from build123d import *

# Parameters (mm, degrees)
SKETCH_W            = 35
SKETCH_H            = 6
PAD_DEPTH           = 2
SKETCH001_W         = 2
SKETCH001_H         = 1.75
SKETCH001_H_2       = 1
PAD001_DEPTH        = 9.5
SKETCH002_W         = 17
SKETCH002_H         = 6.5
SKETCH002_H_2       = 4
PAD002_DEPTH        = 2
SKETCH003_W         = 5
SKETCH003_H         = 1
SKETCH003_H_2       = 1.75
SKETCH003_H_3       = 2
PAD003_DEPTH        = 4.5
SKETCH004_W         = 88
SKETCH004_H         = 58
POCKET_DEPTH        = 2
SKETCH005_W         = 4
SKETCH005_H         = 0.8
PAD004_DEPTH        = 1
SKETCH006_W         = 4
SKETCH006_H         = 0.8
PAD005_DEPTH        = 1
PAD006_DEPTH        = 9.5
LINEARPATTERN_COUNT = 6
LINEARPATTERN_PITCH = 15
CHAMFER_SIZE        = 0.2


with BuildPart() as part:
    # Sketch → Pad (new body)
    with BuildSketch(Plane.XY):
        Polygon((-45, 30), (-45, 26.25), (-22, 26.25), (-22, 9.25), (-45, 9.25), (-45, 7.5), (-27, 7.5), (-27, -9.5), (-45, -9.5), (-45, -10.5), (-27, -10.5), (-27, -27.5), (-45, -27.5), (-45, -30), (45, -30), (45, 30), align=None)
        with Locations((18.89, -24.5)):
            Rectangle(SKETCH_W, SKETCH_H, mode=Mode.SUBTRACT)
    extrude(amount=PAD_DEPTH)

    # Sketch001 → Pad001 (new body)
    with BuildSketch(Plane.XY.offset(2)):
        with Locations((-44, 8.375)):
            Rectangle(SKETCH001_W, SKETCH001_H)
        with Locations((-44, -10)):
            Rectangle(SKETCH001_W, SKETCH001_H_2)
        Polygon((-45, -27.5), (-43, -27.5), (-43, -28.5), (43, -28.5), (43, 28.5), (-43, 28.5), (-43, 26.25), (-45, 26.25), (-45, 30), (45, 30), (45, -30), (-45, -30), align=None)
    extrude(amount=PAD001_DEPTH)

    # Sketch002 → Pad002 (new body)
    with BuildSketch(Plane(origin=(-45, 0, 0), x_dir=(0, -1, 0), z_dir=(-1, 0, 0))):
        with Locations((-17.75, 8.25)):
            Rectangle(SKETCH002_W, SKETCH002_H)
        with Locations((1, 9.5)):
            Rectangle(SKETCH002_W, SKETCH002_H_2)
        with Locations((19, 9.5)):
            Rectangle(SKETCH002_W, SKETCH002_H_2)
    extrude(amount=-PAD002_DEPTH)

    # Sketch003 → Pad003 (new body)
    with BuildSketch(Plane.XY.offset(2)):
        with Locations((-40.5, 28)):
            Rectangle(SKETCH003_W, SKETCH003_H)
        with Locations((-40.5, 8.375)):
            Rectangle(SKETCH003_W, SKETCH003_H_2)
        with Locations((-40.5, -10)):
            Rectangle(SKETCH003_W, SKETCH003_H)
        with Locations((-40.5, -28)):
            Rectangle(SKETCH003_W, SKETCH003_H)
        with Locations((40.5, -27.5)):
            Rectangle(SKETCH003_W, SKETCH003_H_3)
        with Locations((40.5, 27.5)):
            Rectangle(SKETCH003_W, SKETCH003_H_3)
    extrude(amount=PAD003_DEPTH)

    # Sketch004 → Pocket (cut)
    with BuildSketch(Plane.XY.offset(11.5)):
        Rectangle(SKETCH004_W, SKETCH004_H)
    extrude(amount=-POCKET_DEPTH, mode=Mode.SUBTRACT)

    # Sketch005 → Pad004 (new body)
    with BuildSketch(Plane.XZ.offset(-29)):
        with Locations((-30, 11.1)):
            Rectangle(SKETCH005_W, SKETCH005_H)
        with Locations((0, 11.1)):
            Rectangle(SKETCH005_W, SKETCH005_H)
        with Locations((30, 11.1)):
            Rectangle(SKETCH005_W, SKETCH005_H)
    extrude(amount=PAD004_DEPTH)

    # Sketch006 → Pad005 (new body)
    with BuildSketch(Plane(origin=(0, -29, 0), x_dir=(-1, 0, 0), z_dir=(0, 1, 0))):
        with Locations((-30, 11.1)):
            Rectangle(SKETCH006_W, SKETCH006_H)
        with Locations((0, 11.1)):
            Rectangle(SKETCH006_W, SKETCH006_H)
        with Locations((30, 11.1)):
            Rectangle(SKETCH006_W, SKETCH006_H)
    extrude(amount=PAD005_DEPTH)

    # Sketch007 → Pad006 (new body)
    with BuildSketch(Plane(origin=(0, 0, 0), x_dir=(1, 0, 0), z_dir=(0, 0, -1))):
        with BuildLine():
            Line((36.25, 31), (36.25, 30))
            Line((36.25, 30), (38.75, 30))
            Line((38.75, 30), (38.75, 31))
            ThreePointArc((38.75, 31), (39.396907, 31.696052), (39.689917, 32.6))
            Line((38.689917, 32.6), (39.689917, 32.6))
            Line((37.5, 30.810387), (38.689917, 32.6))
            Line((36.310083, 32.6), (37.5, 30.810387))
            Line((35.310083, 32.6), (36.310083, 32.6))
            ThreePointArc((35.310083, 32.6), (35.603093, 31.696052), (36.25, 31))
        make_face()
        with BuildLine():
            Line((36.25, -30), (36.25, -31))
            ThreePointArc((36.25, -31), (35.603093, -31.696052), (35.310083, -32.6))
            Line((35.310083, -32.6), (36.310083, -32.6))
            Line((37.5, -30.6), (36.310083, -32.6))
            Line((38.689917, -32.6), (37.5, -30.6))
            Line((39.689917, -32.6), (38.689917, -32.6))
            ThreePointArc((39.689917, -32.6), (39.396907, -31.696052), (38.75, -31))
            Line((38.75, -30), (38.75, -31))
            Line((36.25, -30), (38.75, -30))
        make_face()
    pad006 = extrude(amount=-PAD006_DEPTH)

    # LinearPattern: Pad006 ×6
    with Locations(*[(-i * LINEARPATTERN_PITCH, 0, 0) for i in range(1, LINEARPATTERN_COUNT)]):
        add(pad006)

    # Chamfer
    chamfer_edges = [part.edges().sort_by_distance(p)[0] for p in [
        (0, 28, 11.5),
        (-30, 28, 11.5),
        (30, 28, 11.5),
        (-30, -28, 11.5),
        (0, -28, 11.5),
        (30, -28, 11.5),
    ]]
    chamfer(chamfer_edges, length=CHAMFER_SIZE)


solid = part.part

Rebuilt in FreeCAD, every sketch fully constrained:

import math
import FreeCAD as App
import Part
import Sketcher

V = App.Vector
Q = App.Units.Quantity


def edges_at(feature, points):
    """Names of the edges that pass closest to the given points."""
    edges = feature.Shape.Edges
    near = lambda p: min(range(len(edges)), key=lambda i: edges[i].distToShape(Part.Vertex(*p))[0])
    return sorted({f"Edge{near(p) + 1}" for p in points})

doc = App.newDocument("Part")
body = doc.addObject("PartDesign::Body", "Body")

# Sketch on XY plane
sketch1 = body.newObject("Sketcher::SketchObject", "Sketch")
sketch1.AttachmentSupport = (doc.getObject("XY_Plane"), [""])
sketch1.MapMode = "FlatFace"
sketch1.addGeometry([
    Part.LineSegment(V(-45, 30, 0), V(-45, 26.2, 0)),  # 0
    Part.LineSegment(V(-45, 26.2, 0), V(-22, 26.2, 0)),  # 1
    Part.LineSegment(V(-22, 26.2, 0), V(-22, 9.2, 0)),  # 2
    Part.LineSegment(V(-22, 9.2, 0), V(-45, 9.2, 0)),  # 3
    Part.LineSegment(V(-45, 9.2, 0), V(-45, 7.5, 0)),  # 4
    Part.LineSegment(V(-45, 7.5, 0), V(-27, 7.5, 0)),  # 5
    Part.LineSegment(V(-27, 7.5, 0), V(-27, -9.5, 0)),  # 6
    Part.LineSegment(V(-27, -9.5, 0), V(-45, -9.5, 0)),  # 7
    Part.LineSegment(V(-45, -9.5, 0), V(-45, -10.5, 0)),  # 8
    Part.LineSegment(V(-45, -10.5, 0), V(-27, -10.5, 0)),  # 9
    Part.LineSegment(V(-27, -10.5, 0), V(-27, -27.5, 0)),  # 10
    Part.LineSegment(V(-27, -27.5, 0), V(-45, -27.5, 0)),  # 11
    Part.LineSegment(V(-45, -27.5, 0), V(-45, -30, 0)),  # 12
    Part.LineSegment(V(-45, -30, 0), V(45, -30, 0)),  # 13
    Part.LineSegment(V(45, -30, 0), V(45, 30, 0)),  # 14
    Part.LineSegment(V(45, 30, 0), V(-45, 30, 0)),  # 15
    Part.LineSegment(V(36.4, -27.5, 0), V(1.4, -27.5, 0)),  # 16
    Part.LineSegment(V(1.4, -27.5, 0), V(1.4, -21.5, 0)),  # 17
    Part.LineSegment(V(1.4, -21.5, 0), V(36.4, -21.5, 0)),  # 18
    Part.LineSegment(V(36.4, -21.5, 0), V(36.4, -27.5, 0)),  # 19
], False)
sketch1.addConstraint([
    Sketcher.Constraint("Coincident", 0, 2, 1, 1),
    Sketcher.Constraint("Coincident", 1, 2, 2, 1),
    Sketcher.Constraint("Coincident", 2, 2, 3, 1),
    Sketcher.Constraint("Coincident", 3, 2, 4, 1),
    Sketcher.Constraint("Coincident", 4, 2, 5, 1),
    Sketcher.Constraint("Coincident", 5, 2, 6, 1),
    Sketcher.Constraint("Coincident", 6, 2, 7, 1),
    Sketcher.Constraint("Coincident", 7, 2, 8, 1),
    Sketcher.Constraint("Coincident", 8, 2, 9, 1),
    Sketcher.Constraint("Coincident", 9, 2, 10, 1),
    Sketcher.Constraint("Coincident", 10, 2, 11, 1),
    Sketcher.Constraint("Coincident", 11, 2, 12, 1),
    Sketcher.Constraint("Coincident", 12, 2, 13, 1),
    Sketcher.Constraint("Coincident", 13, 2, 14, 1),
    Sketcher.Constraint("Coincident", 14, 2, 15, 1),
    Sketcher.Constraint("Coincident", 15, 2, 0, 1),
    Sketcher.Constraint("Coincident", 16, 2, 17, 1),
    Sketcher.Constraint("Coincident", 17, 2, 18, 1),
    Sketcher.Constraint("Coincident", 18, 2, 19, 1),
    Sketcher.Constraint("Coincident", 19, 2, 16, 1),
    Sketcher.Constraint("Vertical", 0),
    Sketcher.Constraint("Horizontal", 1),
    Sketcher.Constraint("Vertical", 2),
    Sketcher.Constraint("Horizontal", 3),
    Sketcher.Constraint("Vertical", 4),
    Sketcher.Constraint("Horizontal", 5),
    Sketcher.Constraint("Vertical", 6),
    Sketcher.Constraint("Horizontal", 7),
    Sketcher.Constraint("Vertical", 8),
    Sketcher.Constraint("Horizontal", 9),
    Sketcher.Constraint("Vertical", 10),
    Sketcher.Constraint("Horizontal", 11),
    Sketcher.Constraint("Vertical", 12),
    Sketcher.Constraint("Horizontal", 13),
    Sketcher.Constraint("Vertical", 14),
    Sketcher.Constraint("Horizontal", 15),
    Sketcher.Constraint("Horizontal", 16),
    Sketcher.Constraint("Vertical", 17),
    Sketcher.Constraint("Horizontal", 18),
    Sketcher.Constraint("Vertical", 19),
    Sketcher.Constraint("Symmetric", 12, 2, 14, 2, -1, 1),
    Sketcher.Constraint("Horizontal", 11, 2, 16, 2),
    Sketcher.Constraint("Vertical", 0, 2, 3, 2),
    Sketcher.Constraint("Vertical", 4, 2, 7, 2),
    Sketcher.Constraint("Vertical", 6, 2, 9, 2),
    Sketcher.Constraint("Vertical", 8, 2, 11, 2),
    Sketcher.Constraint("Equal", 2, 6),
    Sketcher.Constraint("Equal", 6, 10),
    Sketcher.Constraint("DistanceX", 1, 1, 1, 2, 23.0),
    Sketcher.Constraint("DistanceX", 5, 1, 5, 2, 18.0),
    Sketcher.Constraint("DistanceX", 13, 1, 13, 2, 90.0),
    Sketcher.Constraint("DistanceX", 16, 2, 16, 1, 35.0),
    Sketcher.Constraint("DistanceY", 2, 2, 2, 1, 17.0),
    Sketcher.Constraint("DistanceY", 8, 2, 8, 1, 1.0),
    Sketcher.Constraint("DistanceY", 14, 1, 14, 2, 60.0),
    Sketcher.Constraint("DistanceY", 17, 1, 17, 2, 6.0),
    Sketcher.Constraint("DistanceY", 12, 2, 12, 1, 2.5),
    Sketcher.Constraint("DistanceY", 0, 2, 0, 1, 3.75),
    Sketcher.Constraint("DistanceX", -1, 1, 16, 2, 1.39),
])
pad1 = body.newObject("PartDesign::Pad", "Pad")
pad1.Profile = sketch1
pad1.Length = 2

# Sketch on XY plane
sketch2 = body.newObject("Sketcher::SketchObject", "Sketch001")
sketch2.AttachmentSupport = (doc.getObject("XY_Plane"), [""])
sketch2.MapMode = "FlatFace"
sketch2.AttachmentOffset = App.Placement(V(0, 0, 2), App.Rotation())
sketch2.addGeometry([
    Part.LineSegment(V(-45, 9.2, 0), V(-45, 7.5, 0)),  # 0
    Part.LineSegment(V(-45, 7.5, 0), V(-43, 7.5, 0)),  # 1
    Part.LineSegment(V(-43, 7.5, 0), V(-43, 9.2, 0)),  # 2
    Part.LineSegment(V(-43, 9.2, 0), V(-45, 9.2, 0)),  # 3
    Part.LineSegment(V(-45, -9.5, 0), V(-45, -10.5, 0)),  # 4
    Part.LineSegment(V(-45, -10.5, 0), V(-43, -10.5, 0)),  # 5
    Part.LineSegment(V(-43, -10.5, 0), V(-43, -9.5, 0)),  # 6
    Part.LineSegment(V(-43, -9.5, 0), V(-45, -9.5, 0)),  # 7
    Part.LineSegment(V(-43, -27.5, 0), V(-45, -27.5, 0)),  # 8
    Part.LineSegment(V(-45, -27.5, 0), V(-45, -30, 0)),  # 9
    Part.LineSegment(V(-45, -30, 0), V(45, -30, 0)),  # 10
    Part.LineSegment(V(45, -30, 0), V(45, 30, 0)),  # 11
    Part.LineSegment(V(45, 30, 0), V(-45, 30, 0)),  # 12
    Part.LineSegment(V(-45, 30, 0), V(-45, 26.2, 0)),  # 13
    Part.LineSegment(V(-45, 26.2, 0), V(-43, 26.2, 0)),  # 14
    Part.LineSegment(V(-43, 26.2, 0), V(-43, 28.5, 0)),  # 15
    Part.LineSegment(V(-43, 28.5, 0), V(43, 28.5, 0)),  # 16
    Part.LineSegment(V(43, 28.5, 0), V(43, -28.5, 0)),  # 17
    Part.LineSegment(V(43, -28.5, 0), V(-43, -28.5, 0)),  # 18
    Part.LineSegment(V(-43, -28.5, 0), V(-43, -27.5, 0)),  # 19
], False)
sketch2.addConstraint([
    Sketcher.Constraint("Coincident", 0, 2, 1, 1),
    Sketcher.Constraint("Coincident", 1, 2, 2, 1),
    Sketcher.Constraint("Coincident", 2, 2, 3, 1),
    Sketcher.Constraint("Coincident", 3, 2, 0, 1),
    Sketcher.Constraint("Coincident", 4, 2, 5, 1),
    Sketcher.Constraint("Coincident", 5, 2, 6, 1),
    Sketcher.Constraint("Coincident", 6, 2, 7, 1),
    Sketcher.Constraint("Coincident", 7, 2, 4, 1),
    Sketcher.Constraint("Coincident", 8, 2, 9, 1),
    Sketcher.Constraint("Coincident", 9, 2, 10, 1),
    Sketcher.Constraint("Coincident", 10, 2, 11, 1),
    Sketcher.Constraint("Coincident", 11, 2, 12, 1),
    Sketcher.Constraint("Coincident", 12, 2, 13, 1),
    Sketcher.Constraint("Coincident", 13, 2, 14, 1),
    Sketcher.Constraint("Coincident", 14, 2, 15, 1),
    Sketcher.Constraint("Coincident", 15, 2, 16, 1),
    Sketcher.Constraint("Coincident", 16, 2, 17, 1),
    Sketcher.Constraint("Coincident", 17, 2, 18, 1),
    Sketcher.Constraint("Coincident", 18, 2, 19, 1),
    Sketcher.Constraint("Coincident", 19, 2, 8, 1),
    Sketcher.Constraint("Vertical", 0),
    Sketcher.Constraint("Horizontal", 1),
    Sketcher.Constraint("Vertical", 2),
    Sketcher.Constraint("Horizontal", 3),
    Sketcher.Constraint("Vertical", 4),
    Sketcher.Constraint("Horizontal", 5),
    Sketcher.Constraint("Vertical", 6),
    Sketcher.Constraint("Horizontal", 7),
    Sketcher.Constraint("Horizontal", 8),
    Sketcher.Constraint("Vertical", 9),
    Sketcher.Constraint("Horizontal", 10),
    Sketcher.Constraint("Vertical", 11),
    Sketcher.Constraint("Horizontal", 12),
    Sketcher.Constraint("Vertical", 13),
    Sketcher.Constraint("Horizontal", 14),
    Sketcher.Constraint("Vertical", 15),
    Sketcher.Constraint("Horizontal", 16),
    Sketcher.Constraint("Vertical", 17),
    Sketcher.Constraint("Horizontal", 18),
    Sketcher.Constraint("Vertical", 19),
    Sketcher.Constraint("Symmetric", 9, 2, 11, 2, -1, 1),
    Sketcher.Constraint("Symmetric", 15, 2, 17, 2, -1, 1),
    Sketcher.Constraint("Vertical", 3, 2, 4, 2),
    Sketcher.Constraint("Vertical", 2, 2, 5, 2),
    Sketcher.Constraint("Vertical", 7, 2, 8, 2),
    Sketcher.Constraint("Vertical", 9, 2, 12, 2),
    Sketcher.Constraint("Vertical", 6, 2, 14, 2),
    Sketcher.Constraint("Vertical", 15, 2, 18, 2),
    Sketcher.Constraint("Equal", 6, 19),
    Sketcher.Constraint("DistanceX", 1, 1, 1, 2, 2.0),
    Sketcher.Constraint("DistanceX", 10, 1, 10, 2, 90.0),
    Sketcher.Constraint("DistanceY", 4, 2, 4, 1, 1.0),
    Sketcher.Constraint("DistanceY", 11, 1, 11, 2, 60.0),
    Sketcher.Constraint("DistanceY", 17, 2, 17, 1, 57.0),
    Sketcher.Constraint("DistanceY", 4, 2, 0, 2, 18.0),
    Sketcher.Constraint("DistanceY", 8, 2, 4, 2, 17.0),
    Sketcher.Constraint("DistanceY", 3, 2, 13, 2, 17.0),
    Sketcher.Constraint("DistanceY", 0, 2, 0, 1, 1.75),
])
pad2 = body.newObject("PartDesign::Pad", "Pad001")
pad2.Profile = sketch2
pad2.Length = 9.5

# Sketch on YZ plane
sketch3 = body.newObject("Sketcher::SketchObject", "Sketch002")
sketch3.AttachmentSupport = (doc.getObject("YZ_Plane"), [""])
sketch3.MapMode = "FlatFace"
sketch3.AttachmentOffset = App.Placement(V(0, 0, -45), App.Rotation())
sketch3.addGeometry([
    Part.LineSegment(V(26.2, 11.5, 0), V(26.2, 5, 0)),  # 0
    Part.LineSegment(V(26.2, 5, 0), V(9.2, 5, 0)),  # 1
    Part.LineSegment(V(9.2, 5, 0), V(9.2, 11.5, 0)),  # 2
    Part.LineSegment(V(9.2, 11.5, 0), V(26.2, 11.5, 0)),  # 3
    Part.LineSegment(V(7.5, 11.5, 0), V(7.5, 7.5, 0)),  # 4
    Part.LineSegment(V(7.5, 7.5, 0), V(-9.5, 7.5, 0)),  # 5
    Part.LineSegment(V(-9.5, 7.5, 0), V(-9.5, 11.5, 0)),  # 6
    Part.LineSegment(V(-9.5, 11.5, 0), V(7.5, 11.5, 0)),  # 7
    Part.LineSegment(V(-10.5, 11.5, 0), V(-10.5, 7.5, 0)),  # 8
    Part.LineSegment(V(-10.5, 7.5, 0), V(-27.5, 7.5, 0)),  # 9
    Part.LineSegment(V(-27.5, 7.5, 0), V(-27.5, 11.5, 0)),  # 10
    Part.LineSegment(V(-27.5, 11.5, 0), V(-10.5, 11.5, 0)),  # 11
], False)
sketch3.addConstraint([
    Sketcher.Constraint("Coincident", 0, 2, 1, 1),
    Sketcher.Constraint("Coincident", 1, 2, 2, 1),
    Sketcher.Constraint("Coincident", 2, 2, 3, 1),
    Sketcher.Constraint("Coincident", 3, 2, 0, 1),
    Sketcher.Constraint("Coincident", 4, 2, 5, 1),
    Sketcher.Constraint("Coincident", 5, 2, 6, 1),
    Sketcher.Constraint("Coincident", 6, 2, 7, 1),
    Sketcher.Constraint("Coincident", 7, 2, 4, 1),
    Sketcher.Constraint("Coincident", 8, 2, 9, 1),
    Sketcher.Constraint("Coincident", 9, 2, 10, 1),
    Sketcher.Constraint("Coincident", 10, 2, 11, 1),
    Sketcher.Constraint("Coincident", 11, 2, 8, 1),
    Sketcher.Constraint("Vertical", 0),
    Sketcher.Constraint("Horizontal", 1),
    Sketcher.Constraint("Vertical", 2),
    Sketcher.Constraint("Horizontal", 3),
    Sketcher.Constraint("Vertical", 4),
    Sketcher.Constraint("Horizontal", 5),
    Sketcher.Constraint("Vertical", 6),
    Sketcher.Constraint("Horizontal", 7),
    Sketcher.Constraint("Vertical", 8),
    Sketcher.Constraint("Horizontal", 9),
    Sketcher.Constraint("Vertical", 10),
    Sketcher.Constraint("Horizontal", 11),
    Sketcher.Constraint("Horizontal", 3, 2, 6, 2),
    Sketcher.Constraint("Horizontal", 5, 2, 8, 2),
    Sketcher.Constraint("Horizontal", 7, 2, 10, 2),
    Sketcher.Constraint("Equal", 3, 5),
    Sketcher.Constraint("Equal", 7, 9),
    Sketcher.Constraint("DistanceX", 1, 2, 1, 1, 17.0),
    Sketcher.Constraint("DistanceY", 4, 2, 4, 1, 4.0),
    Sketcher.Constraint("DistanceY", 0, 2, 0, 1, 6.5),
    Sketcher.Constraint("DistanceY", -1, 1, 0, 2, 5.0),
    Sketcher.Constraint("DistanceX", 8, 2, 5, 2, 1.0),
    Sketcher.Constraint("DistanceX", -1, 1, 4, 2, 7.5),
    Sketcher.Constraint("DistanceX", -1, 1, 0, 2, 26.25),
])
pad3 = body.newObject("PartDesign::Pad", "Pad002")
pad3.Profile = sketch3
pad3.Length = 2

# Sketch on XY plane
sketch4 = body.newObject("Sketcher::SketchObject", "Sketch003")
sketch4.AttachmentSupport = (doc.getObject("XY_Plane"), [""])
sketch4.MapMode = "FlatFace"
sketch4.AttachmentOffset = App.Placement(V(0, 0, 2), App.Rotation())
sketch4.addGeometry([
    Part.LineSegment(V(-43, 28.5, 0), V(-43, 27.5, 0)),  # 0
    Part.LineSegment(V(-43, 27.5, 0), V(-38, 27.5, 0)),  # 1
    Part.LineSegment(V(-38, 27.5, 0), V(-38, 28.5, 0)),  # 2
    Part.LineSegment(V(-38, 28.5, 0), V(-43, 28.5, 0)),  # 3
    Part.LineSegment(V(-43, 9.2, 0), V(-43, 7.5, 0)),  # 4
    Part.LineSegment(V(-43, 7.5, 0), V(-38, 7.5, 0)),  # 5
    Part.LineSegment(V(-38, 7.5, 0), V(-38, 9.2, 0)),  # 6
    Part.LineSegment(V(-38, 9.2, 0), V(-43, 9.2, 0)),  # 7
    Part.LineSegment(V(-43, -9.5, 0), V(-43, -10.5, 0)),  # 8
    Part.LineSegment(V(-43, -10.5, 0), V(-38, -10.5, 0)),  # 9
    Part.LineSegment(V(-38, -10.5, 0), V(-38, -9.5, 0)),  # 10
    Part.LineSegment(V(-38, -9.5, 0), V(-43, -9.5, 0)),  # 11
    Part.LineSegment(V(-43, -27.5, 0), V(-43, -28.5, 0)),  # 12
    Part.LineSegment(V(-43, -28.5, 0), V(-38, -28.5, 0)),  # 13
    Part.LineSegment(V(-38, -28.5, 0), V(-38, -27.5, 0)),  # 14
    Part.LineSegment(V(-38, -27.5, 0), V(-43, -27.5, 0)),  # 15
    Part.LineSegment(V(38, -26.5, 0), V(38, -28.5, 0)),  # 16
    Part.LineSegment(V(38, -28.5, 0), V(43, -28.5, 0)),  # 17
    Part.LineSegment(V(43, -28.5, 0), V(43, -26.5, 0)),  # 18
    Part.LineSegment(V(43, -26.5, 0), V(38, -26.5, 0)),  # 19
    Part.LineSegment(V(38, 28.5, 0), V(38, 26.5, 0)),  # 20
    Part.LineSegment(V(38, 26.5, 0), V(43, 26.5, 0)),  # 21
    Part.LineSegment(V(43, 26.5, 0), V(43, 28.5, 0)),  # 22
    Part.LineSegment(V(43, 28.5, 0), V(38, 28.5, 0)),  # 23
], False)
sketch4.addConstraint([
    Sketcher.Constraint("Coincident", 0, 2, 1, 1),
    Sketcher.Constraint("Coincident", 1, 2, 2, 1),
    Sketcher.Constraint("Coincident", 2, 2, 3, 1),
    Sketcher.Constraint("Coincident", 3, 2, 0, 1),
    Sketcher.Constraint("Coincident", 4, 2, 5, 1),
    Sketcher.Constraint("Coincident", 5, 2, 6, 1),
    Sketcher.Constraint("Coincident", 6, 2, 7, 1),
    Sketcher.Constraint("Coincident", 7, 2, 4, 1),
    Sketcher.Constraint("Coincident", 8, 2, 9, 1),
    Sketcher.Constraint("Coincident", 9, 2, 10, 1),
    Sketcher.Constraint("Coincident", 10, 2, 11, 1),
    Sketcher.Constraint("Coincident", 11, 2, 8, 1),
    Sketcher.Constraint("Coincident", 12, 2, 13, 1),
    Sketcher.Constraint("Coincident", 13, 2, 14, 1),
    Sketcher.Constraint("Coincident", 14, 2, 15, 1),
    Sketcher.Constraint("Coincident", 15, 2, 12, 1),
    Sketcher.Constraint("Coincident", 16, 2, 17, 1),
    Sketcher.Constraint("Coincident", 17, 2, 18, 1),
    Sketcher.Constraint("Coincident", 18, 2, 19, 1),
    Sketcher.Constraint("Coincident", 19, 2, 16, 1),
    Sketcher.Constraint("Coincident", 20, 2, 21, 1),
    Sketcher.Constraint("Coincident", 21, 2, 22, 1),
    Sketcher.Constraint("Coincident", 22, 2, 23, 1),
    Sketcher.Constraint("Coincident", 23, 2, 20, 1),
    Sketcher.Constraint("Vertical", 0),
    Sketcher.Constraint("Horizontal", 1),
    Sketcher.Constraint("Vertical", 2),
    Sketcher.Constraint("Horizontal", 3),
    Sketcher.Constraint("Vertical", 4),
    Sketcher.Constraint("Horizontal", 5),
    Sketcher.Constraint("Vertical", 6),
    Sketcher.Constraint("Horizontal", 7),
    Sketcher.Constraint("Vertical", 8),
    Sketcher.Constraint("Horizontal", 9),
    Sketcher.Constraint("Vertical", 10),
    Sketcher.Constraint("Horizontal", 11),
    Sketcher.Constraint("Vertical", 12),
    Sketcher.Constraint("Horizontal", 13),
    Sketcher.Constraint("Vertical", 14),
    Sketcher.Constraint("Horizontal", 15),
    Sketcher.Constraint("Vertical", 16),
    Sketcher.Constraint("Horizontal", 17),
    Sketcher.Constraint("Vertical", 18),
    Sketcher.Constraint("Horizontal", 19),
    Sketcher.Constraint("Vertical", 20),
    Sketcher.Constraint("Horizontal", 21),
    Sketcher.Constraint("Vertical", 22),
    Sketcher.Constraint("Horizontal", 23),
    Sketcher.Constraint("Symmetric", 2, 2, 16, 2, -1, 1),
    Sketcher.Constraint("Symmetric", 12, 2, 22, 2, -1, 1),
    Sketcher.Constraint("Symmetric", 13, 2, 16, 2, -2),
    Sketcher.Constraint("Symmetric", 0, 2, 15, 2, -1),
    Sketcher.Constraint("Symmetric", 19, 2, 20, 2, -1),
    Sketcher.Constraint("Vertical", 3, 2, 4, 2),
    Sketcher.Constraint("Vertical", 2, 2, 5, 2),
    Sketcher.Constraint("Vertical", 7, 2, 8, 2),
    Sketcher.Constraint("Vertical", 6, 2, 9, 2),
    Sketcher.Constraint("Vertical", 18, 2, 21, 2),
    Sketcher.Constraint("Equal", 2, 8),
    Sketcher.Constraint("DistanceX", 1, 1, 1, 2, 5.0),
    Sketcher.Constraint("DistanceY", 0, 2, 0, 1, 1.0),
    Sketcher.Constraint("DistanceY", 16, 2, 16, 1, 2.0),
    Sketcher.Constraint("DistanceX", 0, 2, -1, 1, 43.0),
    Sketcher.Constraint("DistanceY", 4, 2, 0, 2, 20.0),
    Sketcher.Constraint("DistanceY", 8, 2, 4, 2, 18.0),
    Sketcher.Constraint("DistanceY", 12, 2, 8, 2, 18.0),
    Sketcher.Constraint("DistanceY", 4, 2, 4, 1, 1.75),
])
pad4 = body.newObject("PartDesign::Pad", "Pad003")
pad4.Profile = sketch4
pad4.Length = 4.5

# Sketch on XY plane
sketch5 = body.newObject("Sketcher::SketchObject", "Sketch004")
sketch5.AttachmentSupport = (doc.getObject("XY_Plane"), [""])
sketch5.MapMode = "FlatFace"
sketch5.AttachmentOffset = App.Placement(V(0, 0, 11.5), App.Rotation())
sketch5.addGeometry([
    Part.LineSegment(V(-44, 29, 0), V(-44, -29, 0)),
    Part.LineSegment(V(-44, -29, 0), V(44, -29, 0)),
    Part.LineSegment(V(44, -29, 0), V(44, 29, 0)),
    Part.LineSegment(V(44, 29, 0), V(-44, 29, 0)),
], False)
sketch5.addConstraint([
    Sketcher.Constraint("Coincident", 0, 2, 1, 1),
    Sketcher.Constraint("Coincident", 1, 2, 2, 1),
    Sketcher.Constraint("Coincident", 2, 2, 3, 1),
    Sketcher.Constraint("Coincident", 3, 2, 0, 1),
    Sketcher.Constraint("Vertical", 0),
    Sketcher.Constraint("Horizontal", 1),
    Sketcher.Constraint("Vertical", 2),
    Sketcher.Constraint("Horizontal", 3),
    Sketcher.Constraint("Symmetric", 0, 2, 2, 2, -1, 1),
    Sketcher.Constraint("DistanceX", 1, 1, 1, 2, 88.0),
    Sketcher.Constraint("DistanceY", 0, 2, 0, 1, 58.0),
])
pocket1 = body.newObject("PartDesign::Pocket", "Pocket")
pocket1.Profile = sketch5
pocket1.Length = 2

# Sketch on XZ plane
sketch6 = body.newObject("Sketcher::SketchObject", "Sketch005")
sketch6.AttachmentSupport = (doc.getObject("XZ_Plane"), [""])
sketch6.MapMode = "FlatFace"
sketch6.AttachmentOffset = App.Placement(V(0, 0, -29), App.Rotation())
sketch6.addGeometry([
    Part.LineSegment(V(-32, 11.5, 0), V(-32, 10.7, 0)),  # 0
    Part.LineSegment(V(-32, 10.7, 0), V(-28, 10.7, 0)),  # 1
    Part.LineSegment(V(-28, 10.7, 0), V(-28, 11.5, 0)),  # 2
    Part.LineSegment(V(-28, 11.5, 0), V(-32, 11.5, 0)),  # 3
    Part.LineSegment(V(-2, 11.5, 0), V(-2, 10.7, 0)),  # 4
    Part.LineSegment(V(-2, 10.7, 0), V(2, 10.7, 0)),  # 5
    Part.LineSegment(V(2, 10.7, 0), V(2, 11.5, 0)),  # 6
    Part.LineSegment(V(2, 11.5, 0), V(-2, 11.5, 0)),  # 7
    Part.LineSegment(V(28, 11.5, 0), V(28, 10.7, 0)),  # 8
    Part.LineSegment(V(28, 10.7, 0), V(32, 10.7, 0)),  # 9
    Part.LineSegment(V(32, 10.7, 0), V(32, 11.5, 0)),  # 10
    Part.LineSegment(V(32, 11.5, 0), V(28, 11.5, 0)),  # 11
], False)
sketch6.addConstraint([
    Sketcher.Constraint("Coincident", 0, 2, 1, 1),
    Sketcher.Constraint("Coincident", 1, 2, 2, 1),
    Sketcher.Constraint("Coincident", 2, 2, 3, 1),
    Sketcher.Constraint("Coincident", 3, 2, 0, 1),
    Sketcher.Constraint("Coincident", 4, 2, 5, 1),
    Sketcher.Constraint("Coincident", 5, 2, 6, 1),
    Sketcher.Constraint("Coincident", 6, 2, 7, 1),
    Sketcher.Constraint("Coincident", 7, 2, 4, 1),
    Sketcher.Constraint("Coincident", 8, 2, 9, 1),
    Sketcher.Constraint("Coincident", 9, 2, 10, 1),
    Sketcher.Constraint("Coincident", 10, 2, 11, 1),
    Sketcher.Constraint("Coincident", 11, 2, 8, 1),
    Sketcher.Constraint("Vertical", 0),
    Sketcher.Constraint("Horizontal", 1),
    Sketcher.Constraint("Vertical", 2),
    Sketcher.Constraint("Horizontal", 3),
    Sketcher.Constraint("Vertical", 4),
    Sketcher.Constraint("Horizontal", 5),
    Sketcher.Constraint("Vertical", 6),
    Sketcher.Constraint("Horizontal", 7),
    Sketcher.Constraint("Vertical", 8),
    Sketcher.Constraint("Horizontal", 9),
    Sketcher.Constraint("Vertical", 10),
    Sketcher.Constraint("Horizontal", 11),
    Sketcher.Constraint("Symmetric", 1, 2, 8, 2, -2),
    Sketcher.Constraint("Symmetric", 3, 2, 10, 2, -2),
    Sketcher.Constraint("Horizontal", 1, 2, 4, 2),
    Sketcher.Constraint("Horizontal", 3, 2, 6, 2),
    Sketcher.Constraint("Equal", 3, 5),
    Sketcher.Constraint("DistanceX", 1, 1, 1, 2, 4.0),
    Sketcher.Constraint("DistanceY", 0, 2, 0, 1, 0.8),
    Sketcher.Constraint("DistanceX", 0, 2, -1, 1, 32.0),
    Sketcher.Constraint("DistanceX", 4, 2, -1, 1, 2.0),
    Sketcher.Constraint("DistanceY", -1, 1, 0, 2, 10.7),
])
pad5 = body.newObject("PartDesign::Pad", "Pad004")
pad5.Profile = sketch6
pad5.Length = 1

# Sketch on XZ plane
sketch7 = body.newObject("Sketcher::SketchObject", "Sketch006")
sketch7.AttachmentSupport = (doc.getObject("XZ_Plane"), [""])
sketch7.MapMode = "FlatFace"
sketch7.AttachmentOffset = App.Placement(V(0, 0, 29), App.Rotation())
sketch7.addGeometry([
    Part.LineSegment(V(32, 11.5, 0), V(32, 10.7, 0)),  # 0
    Part.LineSegment(V(32, 10.7, 0), V(28, 10.7, 0)),  # 1
    Part.LineSegment(V(28, 10.7, 0), V(28, 11.5, 0)),  # 2
    Part.LineSegment(V(28, 11.5, 0), V(32, 11.5, 0)),  # 3
    Part.LineSegment(V(2, 11.5, 0), V(2, 10.7, 0)),  # 4
    Part.LineSegment(V(2, 10.7, 0), V(-2, 10.7, 0)),  # 5
    Part.LineSegment(V(-2, 10.7, 0), V(-2, 11.5, 0)),  # 6
    Part.LineSegment(V(-2, 11.5, 0), V(2, 11.5, 0)),  # 7
    Part.LineSegment(V(-28, 11.5, 0), V(-28, 10.7, 0)),  # 8
    Part.LineSegment(V(-28, 10.7, 0), V(-32, 10.7, 0)),  # 9
    Part.LineSegment(V(-32, 10.7, 0), V(-32, 11.5, 0)),  # 10
    Part.LineSegment(V(-32, 11.5, 0), V(-28, 11.5, 0)),  # 11
], False)
sketch7.addConstraint([
    Sketcher.Constraint("Coincident", 0, 2, 1, 1),
    Sketcher.Constraint("Coincident", 1, 2, 2, 1),
    Sketcher.Constraint("Coincident", 2, 2, 3, 1),
    Sketcher.Constraint("Coincident", 3, 2, 0, 1),
    Sketcher.Constraint("Coincident", 4, 2, 5, 1),
    Sketcher.Constraint("Coincident", 5, 2, 6, 1),
    Sketcher.Constraint("Coincident", 6, 2, 7, 1),
    Sketcher.Constraint("Coincident", 7, 2, 4, 1),
    Sketcher.Constraint("Coincident", 8, 2, 9, 1),
    Sketcher.Constraint("Coincident", 9, 2, 10, 1),
    Sketcher.Constraint("Coincident", 10, 2, 11, 1),
    Sketcher.Constraint("Coincident", 11, 2, 8, 1),
    Sketcher.Constraint("Vertical", 0),
    Sketcher.Constraint("Horizontal", 1),
    Sketcher.Constraint("Vertical", 2),
    Sketcher.Constraint("Horizontal", 3),
    Sketcher.Constraint("Vertical", 4),
    Sketcher.Constraint("Horizontal", 5),
    Sketcher.Constraint("Vertical", 6),
    Sketcher.Constraint("Horizontal", 7),
    Sketcher.Constraint("Vertical", 8),
    Sketcher.Constraint("Horizontal", 9),
    Sketcher.Constraint("Vertical", 10),
    Sketcher.Constraint("Horizontal", 11),
    Sketcher.Constraint("Symmetric", 1, 2, 8, 2, -2),
    Sketcher.Constraint("Symmetric", 3, 2, 10, 2, -2),
    Sketcher.Constraint("Horizontal", 1, 2, 4, 2),
    Sketcher.Constraint("Horizontal", 3, 2, 6, 2),
    Sketcher.Constraint("Equal", 3, 5),
    Sketcher.Constraint("DistanceX", 1, 2, 1, 1, 4.0),
    Sketcher.Constraint("DistanceY", 0, 2, 0, 1, 0.8),
    Sketcher.Constraint("DistanceX", -1, 1, 0, 2, 32.0),
    Sketcher.Constraint("DistanceX", -1, 1, 4, 2, 2.0),
    Sketcher.Constraint("DistanceY", -1, 1, 0, 2, 10.7),
])
pad6 = body.newObject("PartDesign::Pad", "Pad005")
pad6.Profile = sketch7
pad6.Length = 1
pad6.Reversed = True

# Sketch on XY plane
sketch8 = body.newObject("Sketcher::SketchObject", "Sketch007")
sketch8.AttachmentSupport = (doc.getObject("XY_Plane"), [""])
sketch8.MapMode = "FlatFace"
sketch8.addGeometry([
    Part.LineSegment(V(36.2, -31, 0), V(36.2, -30, 0)),  # 0
    Part.LineSegment(V(36.2, -30, 0), V(38.8, -30, 0)),  # 1
    Part.LineSegment(V(38.8, -30, 0), V(38.8, -31, 0)),  # 2
    Part.ArcOfCircle(Part.Circle(V(37.5, -32.8, 0), V(0, 0, 1), 2.2), math.radians(5), math.radians(55)),  # 3
    Part.LineSegment(V(39.7, -32.6, 0), V(38.7, -32.6, 0)),  # 4
    Part.LineSegment(V(38.7, -32.6, 0), V(37.5, -30.8, 0)),  # 5
    Part.LineSegment(V(37.5, -30.8, 0), V(36.3, -32.6, 0)),  # 6
    Part.LineSegment(V(36.3, -32.6, 0), V(35.3, -32.6, 0)),  # 7
    Part.ArcOfCircle(Part.Circle(V(37.5, -32.8, 0), V(0, 0, 1), 2.2), math.radians(125), math.radians(175)),  # 8
    Part.LineSegment(V(36.2, 30, 0), V(36.2, 31, 0)),  # 9
    Part.ArcOfCircle(Part.Circle(V(37.5, 32.8, 0), V(0, 0, 1), 2.2), math.radians(-175), math.radians(-125)),  # 10
    Part.LineSegment(V(35.3, 32.6, 0), V(36.3, 32.6, 0)),  # 11
    Part.LineSegment(V(36.3, 32.6, 0), V(37.5, 30.6, 0)),  # 12
    Part.LineSegment(V(37.5, 30.6, 0), V(38.7, 32.6, 0)),  # 13
    Part.LineSegment(V(38.7, 32.6, 0), V(39.7, 32.6, 0)),  # 14
    Part.ArcOfCircle(Part.Circle(V(37.5, 32.8, 0), V(0, 0, 1), 2.2), math.radians(-55), math.radians(-5)),  # 15
    Part.LineSegment(V(38.8, 31, 0), V(38.8, 30, 0)),  # 16
    Part.LineSegment(V(38.8, 30, 0), V(36.2, 30, 0)),  # 17
], False)
sketch8.addConstraint([
    Sketcher.Constraint("Coincident", 0, 2, 1, 1),
    Sketcher.Constraint("Coincident", 1, 2, 2, 1),
    Sketcher.Constraint("Coincident", 2, 2, 3, 2),
    Sketcher.Constraint("Coincident", 3, 1, 4, 1),
    Sketcher.Constraint("Coincident", 4, 2, 5, 1),
    Sketcher.Constraint("Coincident", 5, 2, 6, 1),
    Sketcher.Constraint("Coincident", 6, 2, 7, 1),
    Sketcher.Constraint("Coincident", 7, 2, 8, 2),
    Sketcher.Constraint("Coincident", 8, 1, 0, 1),
    Sketcher.Constraint("Coincident", 9, 2, 10, 2),
    Sketcher.Constraint("Coincident", 10, 1, 11, 1),
    Sketcher.Constraint("Coincident", 11, 2, 12, 1),
    Sketcher.Constraint("Coincident", 12, 2, 13, 1),
    Sketcher.Constraint("Coincident", 13, 2, 14, 1),
    Sketcher.Constraint("Coincident", 14, 2, 15, 2),
    Sketcher.Constraint("Coincident", 15, 1, 16, 1),
    Sketcher.Constraint("Coincident", 16, 2, 17, 1),
    Sketcher.Constraint("Coincident", 17, 2, 9, 1),
    Sketcher.Constraint("Vertical", 0),
    Sketcher.Constraint("Horizontal", 1),
    Sketcher.Constraint("Vertical", 2),
    Sketcher.Constraint("Horizontal", 4),
    Sketcher.Constraint("Horizontal", 7),
    Sketcher.Constraint("Vertical", 9),
    Sketcher.Constraint("Horizontal", 11),
    Sketcher.Constraint("Horizontal", 14),
    Sketcher.Constraint("Vertical", 16),
    Sketcher.Constraint("Horizontal", 17),
    Sketcher.Constraint("Coincident", 8, 3, 3, 3),
    Sketcher.Constraint("Coincident", 15, 3, 10, 3),
    Sketcher.Constraint("Equal", 3, 8),
    Sketcher.Constraint("Equal", 8, 10),
    Sketcher.Constraint("Equal", 10, 15),
    Sketcher.Constraint("Symmetric", 3, 3, 10, 3, -1),
    Sketcher.Constraint("Symmetric", 6, 2, 11, 2, -1),
    Sketcher.Constraint("Symmetric", 4, 2, 13, 2, -1),
    Sketcher.Constraint("Symmetric", 1, 2, 16, 2, -1),
    Sketcher.Constraint("Horizontal", 4, 2, 6, 2),
    Sketcher.Constraint("Horizontal", 2, 2, 8, 1),
    Sketcher.Constraint("Horizontal", 9, 2, 15, 1),
    Sketcher.Constraint("Vertical", 5, 2, 12, 2),
    Sketcher.Constraint("Equal", 4, 7),
    Sketcher.Constraint("Equal", 14, 0),
    Sketcher.Constraint("Equal", 5, 6),
    Sketcher.Constraint("DistanceX", 4, 2, 4, 1, 1.0),
    Sketcher.Constraint("DistanceX", 1, 1, 1, 2, 2.5),
    Sketcher.Constraint("DistanceY", 0, 2, -1, 1, 30.0),
    Sketcher.Constraint("DistanceY", 3, 3, 5, 2, 2.000001),
    Sketcher.Constraint("DistanceY", 12, 2, 11, 2, 2.0),
    Sketcher.Constraint("DistanceY", 3, 1, -1, 1, 32.6),
    Sketcher.Constraint("DistanceX", -1, 1, 5, 2, 37.5),
    Sketcher.Constraint("Angle", 5, Q("123.620007 deg")),
])
pad7 = body.newObject("PartDesign::Pad", "Pad006")
pad7.Profile = sketch8
pad7.Length = 9.5
doc.recompute()

linearpattern = body.newObject("PartDesign::LinearPattern", "LinearPattern")
linearpattern.Originals = [pad7]
linearpattern.Direction = (doc.getObject("X_Axis"), [""])
linearpattern.Mode = "offset"
linearpattern.Offset = 15
linearpattern.Occurrences = 6
linearpattern.Reversed = True
body.Tip = linearpattern
doc.recompute()

chamfer = body.newObject("PartDesign::Chamfer", "Chamfer")
chamfer.Base = (linearpattern, edges_at(linearpattern, [
    (0, 28, 11.5),
    (-30, 28, 11.5),
    (30, 28, 11.5),
    (-30, -28, 11.5),
    (0, -28, 11.5),
    (30, -28, 11.5),
]))
chamfer.Size = 0.2

doc.recompute()
